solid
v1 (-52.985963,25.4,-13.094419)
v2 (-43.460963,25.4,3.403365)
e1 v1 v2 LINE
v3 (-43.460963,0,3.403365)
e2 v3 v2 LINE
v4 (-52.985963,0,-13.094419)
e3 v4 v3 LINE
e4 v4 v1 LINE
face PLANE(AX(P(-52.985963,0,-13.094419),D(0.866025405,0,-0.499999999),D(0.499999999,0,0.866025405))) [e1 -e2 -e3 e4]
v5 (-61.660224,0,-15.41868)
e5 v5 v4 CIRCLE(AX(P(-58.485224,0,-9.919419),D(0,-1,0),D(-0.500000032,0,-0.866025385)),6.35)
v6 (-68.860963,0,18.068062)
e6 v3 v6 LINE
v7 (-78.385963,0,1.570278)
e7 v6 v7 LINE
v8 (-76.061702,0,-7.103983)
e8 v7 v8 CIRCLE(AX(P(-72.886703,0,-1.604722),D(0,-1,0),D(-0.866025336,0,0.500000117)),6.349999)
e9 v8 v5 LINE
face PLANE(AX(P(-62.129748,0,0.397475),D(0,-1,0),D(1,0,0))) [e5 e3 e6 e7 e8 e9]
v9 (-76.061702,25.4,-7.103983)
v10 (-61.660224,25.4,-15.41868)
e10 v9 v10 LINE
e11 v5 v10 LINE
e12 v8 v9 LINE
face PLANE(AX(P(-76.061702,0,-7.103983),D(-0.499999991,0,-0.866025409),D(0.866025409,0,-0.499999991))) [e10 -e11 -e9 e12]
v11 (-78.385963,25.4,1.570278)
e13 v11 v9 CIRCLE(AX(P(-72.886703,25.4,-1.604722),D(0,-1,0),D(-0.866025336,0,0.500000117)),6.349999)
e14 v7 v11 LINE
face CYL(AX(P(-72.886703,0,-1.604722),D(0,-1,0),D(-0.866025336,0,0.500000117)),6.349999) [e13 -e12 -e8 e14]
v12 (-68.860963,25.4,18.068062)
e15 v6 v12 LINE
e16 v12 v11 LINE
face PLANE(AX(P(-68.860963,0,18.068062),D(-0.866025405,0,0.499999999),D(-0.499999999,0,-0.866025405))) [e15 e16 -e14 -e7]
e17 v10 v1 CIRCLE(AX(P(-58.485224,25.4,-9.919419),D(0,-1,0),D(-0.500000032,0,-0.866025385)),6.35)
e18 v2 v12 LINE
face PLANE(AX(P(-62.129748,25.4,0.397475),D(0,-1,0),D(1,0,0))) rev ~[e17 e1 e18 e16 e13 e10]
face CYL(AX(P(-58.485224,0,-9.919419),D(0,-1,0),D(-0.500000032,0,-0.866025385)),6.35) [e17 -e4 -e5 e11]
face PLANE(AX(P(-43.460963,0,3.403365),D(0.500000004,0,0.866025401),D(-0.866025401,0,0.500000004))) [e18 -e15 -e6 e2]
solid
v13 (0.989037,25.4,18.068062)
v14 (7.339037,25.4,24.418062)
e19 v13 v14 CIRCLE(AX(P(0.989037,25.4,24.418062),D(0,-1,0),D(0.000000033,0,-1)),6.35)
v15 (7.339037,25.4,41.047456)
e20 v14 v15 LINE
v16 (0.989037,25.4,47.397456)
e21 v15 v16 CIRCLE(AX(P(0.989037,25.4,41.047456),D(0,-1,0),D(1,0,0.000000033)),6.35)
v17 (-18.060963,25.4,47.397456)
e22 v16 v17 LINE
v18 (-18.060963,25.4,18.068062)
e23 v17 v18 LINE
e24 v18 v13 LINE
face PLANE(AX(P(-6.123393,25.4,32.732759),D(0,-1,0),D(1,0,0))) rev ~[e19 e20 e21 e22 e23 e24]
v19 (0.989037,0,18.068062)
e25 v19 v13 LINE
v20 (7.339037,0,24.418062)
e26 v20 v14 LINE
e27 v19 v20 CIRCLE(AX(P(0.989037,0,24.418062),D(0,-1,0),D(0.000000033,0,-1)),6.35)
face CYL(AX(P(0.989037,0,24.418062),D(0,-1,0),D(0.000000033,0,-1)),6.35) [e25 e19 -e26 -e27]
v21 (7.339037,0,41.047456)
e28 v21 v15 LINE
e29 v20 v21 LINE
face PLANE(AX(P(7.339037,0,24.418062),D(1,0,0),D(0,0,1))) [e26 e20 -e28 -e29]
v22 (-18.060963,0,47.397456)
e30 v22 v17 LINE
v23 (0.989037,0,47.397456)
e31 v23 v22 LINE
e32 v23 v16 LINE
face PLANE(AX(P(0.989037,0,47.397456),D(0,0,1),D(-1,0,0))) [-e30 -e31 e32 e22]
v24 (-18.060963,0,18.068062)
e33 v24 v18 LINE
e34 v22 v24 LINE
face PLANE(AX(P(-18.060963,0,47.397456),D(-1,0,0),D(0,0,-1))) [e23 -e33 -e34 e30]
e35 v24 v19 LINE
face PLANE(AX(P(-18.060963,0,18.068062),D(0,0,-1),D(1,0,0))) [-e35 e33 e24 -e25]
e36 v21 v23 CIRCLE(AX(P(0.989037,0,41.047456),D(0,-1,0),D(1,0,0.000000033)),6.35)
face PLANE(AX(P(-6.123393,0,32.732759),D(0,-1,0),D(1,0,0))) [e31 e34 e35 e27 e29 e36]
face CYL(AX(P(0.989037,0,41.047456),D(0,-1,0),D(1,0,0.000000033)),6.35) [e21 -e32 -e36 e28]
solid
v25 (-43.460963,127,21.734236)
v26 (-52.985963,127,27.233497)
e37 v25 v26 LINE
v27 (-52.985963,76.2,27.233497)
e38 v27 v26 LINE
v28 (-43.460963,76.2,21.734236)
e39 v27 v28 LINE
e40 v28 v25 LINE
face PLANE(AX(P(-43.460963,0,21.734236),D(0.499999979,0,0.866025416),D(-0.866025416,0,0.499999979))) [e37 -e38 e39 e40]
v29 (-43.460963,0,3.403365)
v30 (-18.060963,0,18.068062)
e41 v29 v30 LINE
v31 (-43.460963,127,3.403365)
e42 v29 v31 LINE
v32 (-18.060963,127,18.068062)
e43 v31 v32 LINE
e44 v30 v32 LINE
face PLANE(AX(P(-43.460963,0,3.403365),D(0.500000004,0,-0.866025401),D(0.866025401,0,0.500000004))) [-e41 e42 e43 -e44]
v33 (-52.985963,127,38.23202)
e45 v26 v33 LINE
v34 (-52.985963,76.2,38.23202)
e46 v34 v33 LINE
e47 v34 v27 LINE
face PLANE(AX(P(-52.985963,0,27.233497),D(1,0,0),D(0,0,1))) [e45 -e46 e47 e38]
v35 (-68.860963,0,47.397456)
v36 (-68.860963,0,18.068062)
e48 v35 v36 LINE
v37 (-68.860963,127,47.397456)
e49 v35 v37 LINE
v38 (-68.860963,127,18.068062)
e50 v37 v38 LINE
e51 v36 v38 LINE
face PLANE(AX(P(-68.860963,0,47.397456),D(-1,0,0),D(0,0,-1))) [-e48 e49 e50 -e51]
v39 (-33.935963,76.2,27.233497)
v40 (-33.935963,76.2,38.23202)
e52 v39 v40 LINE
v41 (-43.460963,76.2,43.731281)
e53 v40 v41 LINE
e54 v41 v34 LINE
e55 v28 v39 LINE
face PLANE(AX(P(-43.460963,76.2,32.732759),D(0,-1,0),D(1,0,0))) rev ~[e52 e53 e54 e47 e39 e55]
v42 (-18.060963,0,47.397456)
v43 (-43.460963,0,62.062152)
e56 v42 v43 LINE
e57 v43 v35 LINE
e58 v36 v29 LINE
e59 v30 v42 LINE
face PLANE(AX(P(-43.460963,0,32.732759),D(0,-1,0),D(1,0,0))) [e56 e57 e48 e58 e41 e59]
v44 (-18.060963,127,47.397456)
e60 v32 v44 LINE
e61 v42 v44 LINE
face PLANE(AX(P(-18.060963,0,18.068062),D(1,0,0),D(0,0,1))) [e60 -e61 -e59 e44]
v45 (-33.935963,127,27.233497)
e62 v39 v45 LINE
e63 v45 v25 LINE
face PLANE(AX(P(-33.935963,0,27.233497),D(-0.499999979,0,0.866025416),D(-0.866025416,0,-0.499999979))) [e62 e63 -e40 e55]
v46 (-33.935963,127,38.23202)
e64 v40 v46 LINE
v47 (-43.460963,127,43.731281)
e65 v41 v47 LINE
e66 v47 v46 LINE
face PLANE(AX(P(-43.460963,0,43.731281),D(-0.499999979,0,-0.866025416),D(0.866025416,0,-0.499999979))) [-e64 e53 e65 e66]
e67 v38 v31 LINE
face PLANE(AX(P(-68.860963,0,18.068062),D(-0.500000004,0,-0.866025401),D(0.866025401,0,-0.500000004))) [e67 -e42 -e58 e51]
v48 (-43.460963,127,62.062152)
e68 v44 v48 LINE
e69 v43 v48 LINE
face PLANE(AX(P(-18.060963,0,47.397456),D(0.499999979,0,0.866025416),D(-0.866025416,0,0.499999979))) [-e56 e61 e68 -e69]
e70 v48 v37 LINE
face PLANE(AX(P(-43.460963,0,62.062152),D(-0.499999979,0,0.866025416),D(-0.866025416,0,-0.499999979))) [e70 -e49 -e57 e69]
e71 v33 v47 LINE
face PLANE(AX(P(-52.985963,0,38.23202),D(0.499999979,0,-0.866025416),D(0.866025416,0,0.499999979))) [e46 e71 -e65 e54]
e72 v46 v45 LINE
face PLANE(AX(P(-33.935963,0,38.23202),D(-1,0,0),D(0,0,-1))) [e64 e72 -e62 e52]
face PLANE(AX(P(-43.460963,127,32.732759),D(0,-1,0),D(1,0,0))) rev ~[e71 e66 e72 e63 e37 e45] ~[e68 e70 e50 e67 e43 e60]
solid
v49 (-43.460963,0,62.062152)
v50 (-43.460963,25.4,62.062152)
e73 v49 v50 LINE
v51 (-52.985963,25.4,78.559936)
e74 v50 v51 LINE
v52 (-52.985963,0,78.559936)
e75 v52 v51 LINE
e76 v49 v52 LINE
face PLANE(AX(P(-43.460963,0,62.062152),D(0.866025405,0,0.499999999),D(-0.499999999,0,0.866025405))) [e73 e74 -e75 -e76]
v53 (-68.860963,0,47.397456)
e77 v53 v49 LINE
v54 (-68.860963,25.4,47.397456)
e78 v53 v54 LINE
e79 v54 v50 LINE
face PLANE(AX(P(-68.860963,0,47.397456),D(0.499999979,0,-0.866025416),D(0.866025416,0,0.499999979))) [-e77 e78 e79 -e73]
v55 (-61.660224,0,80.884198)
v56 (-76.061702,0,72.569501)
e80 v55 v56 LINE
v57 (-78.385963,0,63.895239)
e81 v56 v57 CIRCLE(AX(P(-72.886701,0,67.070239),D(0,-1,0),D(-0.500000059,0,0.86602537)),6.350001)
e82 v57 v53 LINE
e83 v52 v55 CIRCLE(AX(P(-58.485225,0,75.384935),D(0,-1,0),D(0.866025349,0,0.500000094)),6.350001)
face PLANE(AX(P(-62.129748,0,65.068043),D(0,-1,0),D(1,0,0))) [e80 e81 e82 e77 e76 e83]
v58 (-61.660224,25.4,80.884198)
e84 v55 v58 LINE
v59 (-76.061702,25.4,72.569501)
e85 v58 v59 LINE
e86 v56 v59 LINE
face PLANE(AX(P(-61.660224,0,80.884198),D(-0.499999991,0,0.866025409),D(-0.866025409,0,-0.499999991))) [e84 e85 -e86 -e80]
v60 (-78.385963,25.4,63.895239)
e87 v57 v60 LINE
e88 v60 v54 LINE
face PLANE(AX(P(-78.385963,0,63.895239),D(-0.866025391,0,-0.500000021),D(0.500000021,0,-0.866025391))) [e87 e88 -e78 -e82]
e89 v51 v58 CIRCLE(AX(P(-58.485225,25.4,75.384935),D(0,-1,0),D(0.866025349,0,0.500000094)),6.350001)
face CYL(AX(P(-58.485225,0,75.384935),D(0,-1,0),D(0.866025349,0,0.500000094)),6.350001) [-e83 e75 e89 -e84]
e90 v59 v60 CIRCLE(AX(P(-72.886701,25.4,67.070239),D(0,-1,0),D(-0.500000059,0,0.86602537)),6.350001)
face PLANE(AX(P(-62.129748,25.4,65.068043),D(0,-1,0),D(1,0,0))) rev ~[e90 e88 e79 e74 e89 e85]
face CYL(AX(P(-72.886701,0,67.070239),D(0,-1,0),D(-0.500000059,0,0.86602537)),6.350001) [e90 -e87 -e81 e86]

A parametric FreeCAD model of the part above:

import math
import FreeCAD as App
import Part
import Sketcher
Q = App.Units.Quantity

doc = App.newDocument("Part")
body = doc.addObject("PartDesign::Body", "Body")

# Sketch on XZ plane
sketch1 = body.newObject("Sketcher::SketchObject", "Sketch")
sketch1.AttachmentSupport = (doc.getObject("XZ_Plane"), [""])
sketch1.MapMode = "FlatFace"
sketch1.addGeometry([
    Part.LineSegment(App.Vector(-34, 27, 0), App.Vector(-34, 38, 0)),  # 0
    Part.LineSegment(App.Vector(-34, 38, 0), App.Vector(-43, 44, 0)),  # 1
    Part.LineSegment(App.Vector(-43, 44, 0), App.Vector(-53, 38, 0)),  # 2
    Part.LineSegment(App.Vector(-53, 38, 0), App.Vector(-53, 27, 0)),  # 3
    Part.LineSegment(App.Vector(-53, 27, 0), App.Vector(-43, 22, 0)),  # 4
    Part.LineSegment(App.Vector(-43, 22, 0), App.Vector(-34, 27, 0)),  # 5
], False)
sketch1.addConstraint([
    Sketcher.Constraint("Coincident", 0, 2, 1, 1),
    Sketcher.Constraint("Coincident", 1, 2, 2, 1),
    Sketcher.Constraint("Coincident", 2, 2, 3, 1),
    Sketcher.Constraint("Coincident", 3, 2, 4, 1),
    Sketcher.Constraint("Coincident", 4, 2, 5, 1),
    Sketcher.Constraint("Coincident", 5, 2, 0, 1),
    Sketcher.Constraint("Vertical", 0),
    Sketcher.Constraint("Vertical", 3),
    Sketcher.Constraint("Parallel", 1, 4),
    Sketcher.Constraint("Parallel", 2, 5),
    Sketcher.Constraint("Horizontal", 0, 2, 2, 2),
    Sketcher.Constraint("Horizontal", 3, 2, 5, 2),
    Sketcher.Constraint("Vertical", 1, 2, 4, 2),
    Sketcher.Constraint("Angle", 1, Q("150.000001 deg")),
    Sketcher.Constraint("DistanceX", 2, 2, 0, 2, Q("0.75 in")),
    Sketcher.Constraint("DistanceY", 0, 1, 0, 2, Q("10.998523 mm")),
    Sketcher.Constraint("DistanceY", -1, 1, 0, 2, Q("38.23202 mm")),
    Sketcher.Constraint("DistanceX", 0, 2, -1, 1, Q("33.935963 mm")),
])
pad1 = body.newObject("PartDesign::Pad", "Pad")
pad1.Profile = sketch1
pad1.Length = Q("3 in")
pad1.Reversed = True

# Sketch on XZ plane
sketch2 = body.newObject("Sketcher::SketchObject", "Sketch001")
sketch2.AttachmentSupport = (doc.getObject("XZ_Plane"), [""])
sketch2.MapMode = "FlatFace"
sketch2.addGeometry([
    Part.LineSegment(App.Vector(-18, 18, 0), App.Vector(-18, 47, 0)),  # 0
    Part.LineSegment(App.Vector(-18, 47, 0), App.Vector(-43, 62, 0)),  # 1
    Part.LineSegment(App.Vector(-43, 62, 0), App.Vector(-69, 47, 0)),  # 2
    Part.LineSegment(App.Vector(-69, 47, 0), App.Vector(-69, 18, 0)),  # 3
    Part.LineSegment(App.Vector(-69, 18, 0), App.Vector(-43, 3, 0)),  # 4
    Part.LineSegment(App.Vector(-43, 3, 0), App.Vector(-18, 18, 0)),  # 5
    Part.LineSegment(App.Vector(-53, 38, 0), App.Vector(-43, 44, 0)),  # 6
    Part.LineSegment(App.Vector(-43, 44, 0), App.Vector(-34, 38, 0)),  # 7
    Part.LineSegment(App.Vector(-34, 38, 0), App.Vector(-34, 27, 0)),  # 8
    Part.LineSegment(App.Vector(-34, 27, 0), App.Vector(-43, 22, 0)),  # 9
    Part.LineSegment(App.Vector(-43, 22, 0), App.Vector(-53, 27, 0)),  # 10
    Part.LineSegment(App.Vector(-53, 27, 0), App.Vector(-53, 38, 0)),  # 11
], False)
sketch2.addConstraint([
    Sketcher.Constraint("Coincident", 0, 2, 1, 1),
    Sketcher.Constraint("Coincident", 1, 2, 2, 1),
    Sketcher.Constraint("Coincident", 2, 2, 3, 1),
    Sketcher.Constraint("Coincident", 3, 2, 4, 1),
    Sketcher.Constraint("Coincident", 4, 2, 5, 1),
    Sketcher.Constraint("Coincident", 5, 2, 0, 1),
    Sketcher.Constraint("Coincident", 6, 2, 7, 1),
    Sketcher.Constraint("Coincident", 7, 2, 8, 1),
    Sketcher.Constraint("Coincident", 8, 2, 9, 1),
    Sketcher.Constraint("Coincident", 9, 2, 10, 1),
    Sketcher.Constraint("Coincident", 10, 2, 11, 1),
    Sketcher.Constraint("Coincident", 11, 2, 6, 1),
    Sketcher.Constraint("Vertical", 0),
    Sketcher.Constraint("Vertical", 3),
    Sketcher.Constraint("Vertical", 8),
    Sketcher.Constraint("Vertical", 11),
    Sketcher.Constraint("Parallel", 1, 4),
    Sketcher.Constraint("Parallel", 2, 5),
    Sketcher.Constraint("Parallel", 5, 6),
    Sketcher.Constraint("Parallel", 4, 7),
    Sketcher.Constraint("Parallel", 6, 9),
    Sketcher.Constraint("Parallel", 7, 10),
    Sketcher.Constraint("Horizontal", 0, 2, 2, 2),
    Sketcher.Constraint("Horizontal", 3, 2, 5, 2),
    Sketcher.Constraint("Horizontal", 8, 2, 10, 2),
    Sketcher.Constraint("Horizontal", 7, 2, 11, 2),
    Sketcher.Constraint("Vertical", 1, 2, 4, 2),
    Sketcher.Constraint("Vertical", 4, 2, 6, 2),
    Sketcher.Constraint("Angle", 1, Q("150.000001 deg")),
    Sketcher.Constraint("DistanceX", 1, 2, 0, 2, Q("1 in")),
    Sketcher.Constraint("DistanceX", 10, 2, 8, 2, Q("0.75 in")),
    Sketcher.Constraint("DistanceY", 0, 1, 0, 2, Q("29.329394 mm")),
    Sketcher.Constraint("DistanceY", 8, 2, 8, 1, Q("10.998523 mm")),
    Sketcher.Constraint("DistanceY", -1, 1, 1, 2, Q("62.062152 mm")),
    Sketcher.Constraint("DistanceY", -1, 1, 6, 2, Q("43.731281 mm")),
    Sketcher.Constraint("DistanceX", 0, 2, -1, 1, Q("18.060963 mm")),
])
pad2 = body.newObject("PartDesign::Pad", "Pad001")
pad2.Profile = sketch2
pad2.Length = Q("5 in")
pad2.Reversed = True
body2 = doc.addObject("PartDesign::Body", "Body001")
body2.AllowCompound = True

# Sketch on XZ plane
sketch3 = body2.newObject("Sketcher::SketchObject", "Sketch002")
sketch3.AttachmentSupport = (doc.getObject("XZ_Plane001"), [""])
sketch3.MapMode = "FlatFace"
sketch3.addGeometry([
    Part.LineSegment(App.Vector(-69, 47, 0), App.Vector(-43, 62, 0)),  # 0
    Part.LineSegment(App.Vector(-43, 62, 0), App.Vector(-53, 79, 0)),  # 1
    Part.ArcOfCircle(Part.Circle(App.Vector(-58, 75, 0), App.Vector(0, 0, 1), 6), math.radians(30), math.radians(120)),  # 2
    Part.LineSegment(App.Vector(-62, 81, 0), App.Vector(-76, 73, 0)),  # 3
    Part.ArcOfCircle(Part.Circle(App.Vector(-73, 67, 0), App.Vector(0, 0, 1), 6), math.radians(120), math.radians(210)),  # 4
    Part.LineSegment(App.Vector(-78, 64, 0), App.Vector(-69, 47, 0)),  # 5
    Part.LineSegment(App.Vector(-53, -13, 0), App.Vector(-43, 3, 0)),  # 6
    Part.LineSegment(App.Vector(-43, 3, 0), App.Vector(-69, 18, 0)),  # 7
    Part.LineSegment(App.Vector(-69, 18, 0), App.Vector(-78, 2, 0)),  # 8
    Part.ArcOfCircle(Part.Circle(App.Vector(-73, -2, 0), App.Vector(0, 0, 1), 6), math.radians(150), math.radians(240)),  # 9
    Part.LineSegment(App.Vector(-76, -7, 0), App.Vector(-62, -15, 0)),  # 10
    Part.ArcOfCircle(Part.Circle(App.Vector(-58, -10, 0), App.Vector(0, 0, 1), 6), math.radians(-120), math.radians(-30)),  # 11
    Part.LineSegment(App.Vector(1, 47, 0), App.Vector(-18, 47, 0)),  # 12
    Part.LineSegment(App.Vector(-18, 47, 0), App.Vector(-18, 18, 0)),  # 13
    Part.LineSegment(App.Vector(-18, 18, 0), App.Vector(1, 18, 0)),  # 14
    Part.ArcOfCircle(Part.Circle(App.Vector(1, 24, 0), App.Vector(0, 0, 1), 6), math.radians(-90), math.radians(0)),  # 15
    Part.LineSegment(App.Vector(7, 24, 0), App.Vector(7, 41, 0)),  # 16
    Part.ArcOfCircle(Part.Circle(App.Vector(1, 41, 0), App.Vector(0, 0, 1), 6), math.radians(0), math.radians(90)),  # 17
], False)
sketch3.addConstraint([
    Sketcher.Constraint("Coincident", 0, 2, 1, 1),
    Sketcher.Constraint("Tangent", 1, 2, 2, 1),
    Sketcher.Constraint("Tangent", 2, 2, 3, 1),
    Sketcher.Constraint("Tangent", 3, 2, 4, 1),
    Sketcher.Constraint("Tangent", 4, 2, 5, 1),
    Sketcher.Constraint("Coincident", 5, 2, 0, 1),
    Sketcher.Constraint("Coincident", 6, 2, 7, 1),
    Sketcher.Constraint("Coincident", 7, 2, 8, 1),
    Sketcher.Constraint("Tangent", 8, 2, 9, 1),
    Sketcher.Constraint("Tangent", 9, 2, 10, 1),
    Sketcher.Constraint("Tangent", 10, 2, 11, 1),
    Sketcher.Constraint("Tangent", 11, 2, 6, 1),
    Sketcher.Constraint("Coincident", 12, 2, 13, 1),
    Sketcher.Constraint("Coincident", 13, 2, 14, 1),
    Sketcher.Constraint("Tangent", 14, 2, 15, 1),
    Sketcher.Constraint("Tangent", 15, 2, 16, 1),
    Sketcher.Constraint("Tangent", 16, 2, 17, 1),
    Sketcher.Constraint("Tangent", 17, 2, 12, 1),
    Sketcher.Constraint("Horizontal", 12),
    Sketcher.Constraint("Vertical", 13),
    Sketcher.Constraint("Horizontal", 14),
    Sketcher.Constraint("Vertical", 16),
    Sketcher.Constraint("Equal", 2, 4),
    Sketcher.Constraint("Equal", 4, 9),
    Sketcher.Constraint("Equal", 9, 11),
    Sketcher.Constraint("Equal", 11, 15),
    Sketcher.Constraint("Equal", 15, 17),
    Sketcher.Constraint("Perpendicular", 0, 1),
    Sketcher.Constraint("Perpendicular", 1, 3),
    Sketcher.Constraint("Perpendicular", 3, 5),
    Sketcher.Constraint("Perpendicular", 6, 7),
    Sketcher.Constraint("Perpendicular", 7, 8),
    Sketcher.Constraint("Perpendicular", 8, 10),
    Sketcher.Constraint("Horizontal", 5, 2, 12, 2),
    Sketcher.Constraint("Horizontal", 7, 2, 13, 2),
    Sketcher.Constraint("Vertical", 4, 3, 9, 3),
    Sketcher.Constraint("Vertical", 2, 3, 11, 3),
    Sketcher.Constraint("Vertical", 0, 2, 6, 2),
    Sketcher.Constraint("Vertical", 5, 2, 7, 2),
    Sketcher.Constraint("Radius", 2, Q("0.25 in")),
    Sketcher.Constraint("Angle", 0, Q("29.999999 deg")),
    Sketcher.Constraint("DistanceX", 4, 2, 1, 2, Q("1 in")),
    Sketcher.Constraint("DistanceX", 0, 2, 12, 2, Q("1 in")),
    Sketcher.Constraint("DistanceX", 13, 2, 15, 2, Q("1 in")),
    Sketcher.Constraint("Distance", 1, Q("0.75 in")),
    Sketcher.Constraint("DistanceX", 4, 3, -1, 1, Q("72.886701 mm")),
    Sketcher.Constraint("DistanceY", -1, 1, 2, 2, Q("80.884198 mm")),
    Sketcher.Constraint("DistanceY", 13, 2, 13, 1, Q("29.329394 mm")),
])
pad3 = body2.newObject("PartDesign::Pad", "Pad002")
pad3.Profile = sketch3
pad3.Length = Q("1 in")
pad3.Reversed = True

doc.recompute()
